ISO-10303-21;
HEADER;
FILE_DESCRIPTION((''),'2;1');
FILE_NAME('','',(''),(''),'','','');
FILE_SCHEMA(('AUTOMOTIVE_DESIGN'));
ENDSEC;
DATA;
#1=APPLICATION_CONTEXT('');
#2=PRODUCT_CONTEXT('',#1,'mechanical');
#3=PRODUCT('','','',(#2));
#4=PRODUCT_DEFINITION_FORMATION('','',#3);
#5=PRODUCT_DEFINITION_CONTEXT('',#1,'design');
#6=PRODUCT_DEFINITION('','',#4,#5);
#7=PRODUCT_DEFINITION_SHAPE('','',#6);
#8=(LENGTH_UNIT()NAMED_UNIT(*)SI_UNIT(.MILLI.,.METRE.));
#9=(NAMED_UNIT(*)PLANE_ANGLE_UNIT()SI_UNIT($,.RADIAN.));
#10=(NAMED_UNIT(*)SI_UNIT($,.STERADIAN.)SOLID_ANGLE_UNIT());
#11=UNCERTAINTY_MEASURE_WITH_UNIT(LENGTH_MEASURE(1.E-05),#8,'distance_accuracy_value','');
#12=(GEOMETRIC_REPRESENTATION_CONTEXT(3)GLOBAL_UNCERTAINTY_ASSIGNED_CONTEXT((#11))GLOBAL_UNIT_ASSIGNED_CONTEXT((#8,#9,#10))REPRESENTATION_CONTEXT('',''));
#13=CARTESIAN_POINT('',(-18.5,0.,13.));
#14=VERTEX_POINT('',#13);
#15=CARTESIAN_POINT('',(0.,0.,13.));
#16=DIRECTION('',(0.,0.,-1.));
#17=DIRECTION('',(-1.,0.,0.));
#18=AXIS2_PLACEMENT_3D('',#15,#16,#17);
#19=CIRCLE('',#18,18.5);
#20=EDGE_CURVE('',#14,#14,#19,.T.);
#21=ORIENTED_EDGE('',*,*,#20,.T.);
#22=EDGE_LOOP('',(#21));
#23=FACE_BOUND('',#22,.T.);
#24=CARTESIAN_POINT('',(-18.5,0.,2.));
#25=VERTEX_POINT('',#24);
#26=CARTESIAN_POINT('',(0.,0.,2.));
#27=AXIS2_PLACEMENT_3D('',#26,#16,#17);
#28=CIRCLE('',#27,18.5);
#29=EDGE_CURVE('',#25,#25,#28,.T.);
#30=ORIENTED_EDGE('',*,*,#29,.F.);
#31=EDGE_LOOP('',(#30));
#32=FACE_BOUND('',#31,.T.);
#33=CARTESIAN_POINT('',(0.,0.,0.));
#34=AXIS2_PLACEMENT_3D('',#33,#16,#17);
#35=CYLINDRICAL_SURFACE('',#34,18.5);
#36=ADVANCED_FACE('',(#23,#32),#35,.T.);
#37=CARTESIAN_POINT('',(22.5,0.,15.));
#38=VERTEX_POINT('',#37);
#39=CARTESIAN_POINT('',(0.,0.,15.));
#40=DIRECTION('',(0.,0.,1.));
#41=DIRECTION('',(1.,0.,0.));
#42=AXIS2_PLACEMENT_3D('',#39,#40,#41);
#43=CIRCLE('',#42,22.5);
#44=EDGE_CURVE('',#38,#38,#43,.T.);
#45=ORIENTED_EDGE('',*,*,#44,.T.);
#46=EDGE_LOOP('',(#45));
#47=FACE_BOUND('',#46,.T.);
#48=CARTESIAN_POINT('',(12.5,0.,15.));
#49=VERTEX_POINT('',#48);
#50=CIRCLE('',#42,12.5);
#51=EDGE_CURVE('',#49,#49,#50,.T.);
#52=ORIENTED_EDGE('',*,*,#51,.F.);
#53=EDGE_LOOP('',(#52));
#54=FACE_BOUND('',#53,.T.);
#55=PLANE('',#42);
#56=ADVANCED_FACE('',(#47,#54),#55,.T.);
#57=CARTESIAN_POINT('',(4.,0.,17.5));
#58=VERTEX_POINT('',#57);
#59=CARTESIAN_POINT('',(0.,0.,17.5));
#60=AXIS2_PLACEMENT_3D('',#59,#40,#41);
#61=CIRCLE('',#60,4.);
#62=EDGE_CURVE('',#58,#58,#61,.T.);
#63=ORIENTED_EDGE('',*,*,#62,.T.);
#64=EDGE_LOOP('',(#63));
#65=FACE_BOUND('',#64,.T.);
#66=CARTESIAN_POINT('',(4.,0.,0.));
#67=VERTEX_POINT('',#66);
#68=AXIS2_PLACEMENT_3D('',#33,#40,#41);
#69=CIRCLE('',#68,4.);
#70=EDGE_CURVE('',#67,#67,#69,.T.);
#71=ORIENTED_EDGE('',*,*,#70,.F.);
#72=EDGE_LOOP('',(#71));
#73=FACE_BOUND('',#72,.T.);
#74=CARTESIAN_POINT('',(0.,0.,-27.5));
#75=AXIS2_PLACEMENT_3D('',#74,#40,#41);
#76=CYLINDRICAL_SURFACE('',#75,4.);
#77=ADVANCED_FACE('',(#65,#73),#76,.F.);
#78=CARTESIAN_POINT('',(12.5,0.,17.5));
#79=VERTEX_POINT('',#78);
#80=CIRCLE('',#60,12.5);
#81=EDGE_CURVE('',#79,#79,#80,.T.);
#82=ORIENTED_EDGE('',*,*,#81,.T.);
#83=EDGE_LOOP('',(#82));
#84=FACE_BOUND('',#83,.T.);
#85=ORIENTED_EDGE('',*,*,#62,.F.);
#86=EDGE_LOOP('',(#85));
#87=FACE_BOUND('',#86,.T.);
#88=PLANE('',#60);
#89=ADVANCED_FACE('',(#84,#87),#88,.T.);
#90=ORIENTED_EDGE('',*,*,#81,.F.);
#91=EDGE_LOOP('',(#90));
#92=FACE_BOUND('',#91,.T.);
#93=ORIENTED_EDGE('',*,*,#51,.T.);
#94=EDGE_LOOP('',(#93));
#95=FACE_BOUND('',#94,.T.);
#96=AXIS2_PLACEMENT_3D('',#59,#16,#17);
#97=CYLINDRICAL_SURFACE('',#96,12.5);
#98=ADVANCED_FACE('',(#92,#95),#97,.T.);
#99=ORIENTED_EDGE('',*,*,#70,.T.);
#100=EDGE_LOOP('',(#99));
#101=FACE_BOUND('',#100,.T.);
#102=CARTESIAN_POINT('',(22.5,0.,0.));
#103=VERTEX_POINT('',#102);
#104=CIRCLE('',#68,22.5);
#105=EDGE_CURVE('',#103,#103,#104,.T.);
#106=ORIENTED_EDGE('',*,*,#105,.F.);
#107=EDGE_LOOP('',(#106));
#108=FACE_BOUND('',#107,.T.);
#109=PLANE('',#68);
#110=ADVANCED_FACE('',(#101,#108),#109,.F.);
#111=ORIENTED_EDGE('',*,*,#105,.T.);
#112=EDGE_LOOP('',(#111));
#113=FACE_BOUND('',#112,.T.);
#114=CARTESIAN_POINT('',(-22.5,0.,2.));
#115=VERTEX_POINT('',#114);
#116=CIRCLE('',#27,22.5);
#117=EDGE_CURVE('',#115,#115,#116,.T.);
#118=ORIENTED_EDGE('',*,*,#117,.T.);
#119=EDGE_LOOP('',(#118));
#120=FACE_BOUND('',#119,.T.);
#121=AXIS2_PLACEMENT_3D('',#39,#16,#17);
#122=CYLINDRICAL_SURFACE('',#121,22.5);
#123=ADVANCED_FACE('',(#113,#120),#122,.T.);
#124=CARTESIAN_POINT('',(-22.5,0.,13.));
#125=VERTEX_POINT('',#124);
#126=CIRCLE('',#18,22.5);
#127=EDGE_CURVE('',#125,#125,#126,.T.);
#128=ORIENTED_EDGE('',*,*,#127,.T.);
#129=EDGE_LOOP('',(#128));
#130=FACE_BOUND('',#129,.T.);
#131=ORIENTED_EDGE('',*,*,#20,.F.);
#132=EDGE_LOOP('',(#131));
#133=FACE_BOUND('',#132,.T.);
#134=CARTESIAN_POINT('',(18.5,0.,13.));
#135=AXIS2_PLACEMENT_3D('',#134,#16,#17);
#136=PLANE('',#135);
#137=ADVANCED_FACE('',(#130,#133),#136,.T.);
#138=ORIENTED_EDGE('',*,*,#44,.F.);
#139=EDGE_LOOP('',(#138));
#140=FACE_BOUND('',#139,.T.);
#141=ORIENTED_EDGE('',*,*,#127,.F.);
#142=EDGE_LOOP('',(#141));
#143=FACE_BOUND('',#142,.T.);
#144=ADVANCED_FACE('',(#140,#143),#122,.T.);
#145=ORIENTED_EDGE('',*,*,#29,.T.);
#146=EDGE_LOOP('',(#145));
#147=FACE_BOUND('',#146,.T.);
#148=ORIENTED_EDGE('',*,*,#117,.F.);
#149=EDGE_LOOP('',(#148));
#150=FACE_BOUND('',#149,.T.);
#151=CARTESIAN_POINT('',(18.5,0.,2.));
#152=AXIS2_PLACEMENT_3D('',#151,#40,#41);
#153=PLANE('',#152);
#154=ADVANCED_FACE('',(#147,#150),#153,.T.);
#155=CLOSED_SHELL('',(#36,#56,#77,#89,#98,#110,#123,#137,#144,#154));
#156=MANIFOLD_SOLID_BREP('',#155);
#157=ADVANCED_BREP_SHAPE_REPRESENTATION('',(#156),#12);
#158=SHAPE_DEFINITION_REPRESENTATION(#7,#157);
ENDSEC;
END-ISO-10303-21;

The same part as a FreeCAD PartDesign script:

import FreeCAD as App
import Part
import Sketcher


def add_polygon(sketch, points):
    """Adds a closed chain of lines whose ends are joined by coincident constraints."""
    first, n = sketch.GeometryCount, len(points)
    for a, b in zip(points, points[1:] + points[:1]):
        sketch.addGeometry(Part.LineSegment(App.Vector(*a, 0), App.Vector(*b, 0)), False)
    for i in range(n):
        sketch.addConstraint(Sketcher.Constraint("Coincident", first + i, 2, first + (i + 1) % n, 1))

doc = App.newDocument("Part")
params = doc.addObject("Spreadsheet::Sheet", "Params")
for row, (alias, value) in enumerate([
    ("sketch1_diameter", "45 mm"),
    ("pad1_length", "15 mm"),
    ("sketch2_diameter", "25 mm"),
    ("pad2_length", "2.5 mm"),
    ("sketch3_diameter", "8 mm"),
    ("pocket1_length", "45 mm"),
    ("sketch4_width", "4 mm"),
    ("sketch4_height", "11 mm"),
    ("groove_angle", "360 deg"),
], start=1):
    params.set(f"A{row}", alias)
    params.set(f"B{row}", "=" + value)
    params.setAlias(f"B{row}", alias)

body = doc.addObject("PartDesign::Body", "Body")

# Sketch on XY plane
sketch1 = doc.addObject("Sketcher::SketchObject", "Sketch")
body.addObject(sketch1)
sketch1.AttachmentSupport = (doc.XY_Plane, [""])
sketch1.MapMode = "FlatFace"
sketch1.addGeometry(Part.Circle(App.Vector(0, 0, 0), App.Vector(0, 0, 1), 22), False)
sketch1.addConstraint([
    Sketcher.Constraint("Coincident", 0, 3, -1, 1),
    Sketcher.Constraint("Diameter", 0, 45.0),
])
sketch1.setExpression("Constraints[1]", "Params.sketch1_diameter")
pad1 = doc.addObject("PartDesign::Pad", "Pad")
body.addObject(pad1)
pad1.Profile = sketch1
pad1.setExpression("Length", "Params.pad1_length")

# Sketch on XY plane
sketch2 = doc.addObject("Sketcher::SketchObject", "Sketch001")
body.addObject(sketch2)
sketch2.AttachmentSupport = (doc.XY_Plane, [""])
sketch2.MapMode = "FlatFace"
sketch2.AttachmentOffset = App.Placement(App.Vector(0, 0, 15), App.Rotation())
sketch2.addGeometry(Part.Circle(App.Vector(0, 0, 0), App.Vector(0, 0, 1), 12), False)
sketch2.addConstraint([
    Sketcher.Constraint("Coincident", 0, 3, -1, 1),
    Sketcher.Constraint("Diameter", 0, 25.0),
])
sketch2.setExpression("Constraints[1]", "Params.sketch2_diameter")
pad2 = doc.addObject("PartDesign::Pad", "Pad001")
body.addObject(pad2)
pad2.Profile = sketch2
pad2.setExpression("Length", "Params.pad2_length")

# Sketch on XY plane
sketch3 = doc.addObject("Sketcher::SketchObject", "Sketch002")
body.addObject(sketch3)
sketch3.AttachmentSupport = (doc.XY_Plane, [""])
sketch3.MapMode = "FlatFace"
sketch3.AttachmentOffset = App.Placement(App.Vector(0, 0, 17.5), App.Rotation())
sketch3.addGeometry(Part.Circle(App.Vector(0, 0, 0), App.Vector(0, 0, 1), 4), False)
sketch3.addConstraint([
    Sketcher.Constraint("Coincident", 0, 3, -1, 1),
    Sketcher.Constraint("Diameter", 0, 8.0),
])
sketch3.setExpression("Constraints[1]", "Params.sketch3_diameter")
pocket1 = doc.addObject("PartDesign::Pocket", "Pocket")
body.addObject(pocket1)
pocket1.Profile = sketch3
pocket1.setExpression("Length", "Params.pocket1_length")

# Sketch on XZ plane
sketch4 = doc.addObject("Sketcher::SketchObject", "Sketch003")
body.addObject(sketch4)
sketch4.AttachmentSupport = (doc.XZ_Plane, [""])
sketch4.MapMode = "FlatFace"
add_polygon(sketch4, [(18.5, 2), (18.5, 13), (22.5, 13), (22.5, 2)])  # lines 0-3
sketch4.addConstraint([
    Sketcher.Constraint("Vertical", 0),
    Sketcher.Constraint("Horizontal", 1),
    Sketcher.Constraint("Vertical", 2),
    Sketcher.Constraint("Horizontal", 3),
    Sketcher.Constraint("DistanceX", 1, 1, 1, 2, 4.0),
    Sketcher.Constraint("DistanceY", 0, 1, 0, 2, 11.0),
    Sketcher.Constraint("DistanceY", -1, 1, 0, 2, 13.0),
    Sketcher.Constraint("DistanceX", -1, 1, 0, 2, 18.5),
])
sketch4.setExpression("Constraints[8]", "Params.sketch4_width")
sketch4.setExpression("Constraints[9]", "Params.sketch4_height")
groove = doc.addObject("PartDesign::Groove", "Groove")
body.addObject(groove)
groove.Profile = sketch4
groove.ReferenceAxis = (sketch4, ["V_Axis"])
groove.setExpression("Angle", "Params.groove_angle")

doc.recompute()
